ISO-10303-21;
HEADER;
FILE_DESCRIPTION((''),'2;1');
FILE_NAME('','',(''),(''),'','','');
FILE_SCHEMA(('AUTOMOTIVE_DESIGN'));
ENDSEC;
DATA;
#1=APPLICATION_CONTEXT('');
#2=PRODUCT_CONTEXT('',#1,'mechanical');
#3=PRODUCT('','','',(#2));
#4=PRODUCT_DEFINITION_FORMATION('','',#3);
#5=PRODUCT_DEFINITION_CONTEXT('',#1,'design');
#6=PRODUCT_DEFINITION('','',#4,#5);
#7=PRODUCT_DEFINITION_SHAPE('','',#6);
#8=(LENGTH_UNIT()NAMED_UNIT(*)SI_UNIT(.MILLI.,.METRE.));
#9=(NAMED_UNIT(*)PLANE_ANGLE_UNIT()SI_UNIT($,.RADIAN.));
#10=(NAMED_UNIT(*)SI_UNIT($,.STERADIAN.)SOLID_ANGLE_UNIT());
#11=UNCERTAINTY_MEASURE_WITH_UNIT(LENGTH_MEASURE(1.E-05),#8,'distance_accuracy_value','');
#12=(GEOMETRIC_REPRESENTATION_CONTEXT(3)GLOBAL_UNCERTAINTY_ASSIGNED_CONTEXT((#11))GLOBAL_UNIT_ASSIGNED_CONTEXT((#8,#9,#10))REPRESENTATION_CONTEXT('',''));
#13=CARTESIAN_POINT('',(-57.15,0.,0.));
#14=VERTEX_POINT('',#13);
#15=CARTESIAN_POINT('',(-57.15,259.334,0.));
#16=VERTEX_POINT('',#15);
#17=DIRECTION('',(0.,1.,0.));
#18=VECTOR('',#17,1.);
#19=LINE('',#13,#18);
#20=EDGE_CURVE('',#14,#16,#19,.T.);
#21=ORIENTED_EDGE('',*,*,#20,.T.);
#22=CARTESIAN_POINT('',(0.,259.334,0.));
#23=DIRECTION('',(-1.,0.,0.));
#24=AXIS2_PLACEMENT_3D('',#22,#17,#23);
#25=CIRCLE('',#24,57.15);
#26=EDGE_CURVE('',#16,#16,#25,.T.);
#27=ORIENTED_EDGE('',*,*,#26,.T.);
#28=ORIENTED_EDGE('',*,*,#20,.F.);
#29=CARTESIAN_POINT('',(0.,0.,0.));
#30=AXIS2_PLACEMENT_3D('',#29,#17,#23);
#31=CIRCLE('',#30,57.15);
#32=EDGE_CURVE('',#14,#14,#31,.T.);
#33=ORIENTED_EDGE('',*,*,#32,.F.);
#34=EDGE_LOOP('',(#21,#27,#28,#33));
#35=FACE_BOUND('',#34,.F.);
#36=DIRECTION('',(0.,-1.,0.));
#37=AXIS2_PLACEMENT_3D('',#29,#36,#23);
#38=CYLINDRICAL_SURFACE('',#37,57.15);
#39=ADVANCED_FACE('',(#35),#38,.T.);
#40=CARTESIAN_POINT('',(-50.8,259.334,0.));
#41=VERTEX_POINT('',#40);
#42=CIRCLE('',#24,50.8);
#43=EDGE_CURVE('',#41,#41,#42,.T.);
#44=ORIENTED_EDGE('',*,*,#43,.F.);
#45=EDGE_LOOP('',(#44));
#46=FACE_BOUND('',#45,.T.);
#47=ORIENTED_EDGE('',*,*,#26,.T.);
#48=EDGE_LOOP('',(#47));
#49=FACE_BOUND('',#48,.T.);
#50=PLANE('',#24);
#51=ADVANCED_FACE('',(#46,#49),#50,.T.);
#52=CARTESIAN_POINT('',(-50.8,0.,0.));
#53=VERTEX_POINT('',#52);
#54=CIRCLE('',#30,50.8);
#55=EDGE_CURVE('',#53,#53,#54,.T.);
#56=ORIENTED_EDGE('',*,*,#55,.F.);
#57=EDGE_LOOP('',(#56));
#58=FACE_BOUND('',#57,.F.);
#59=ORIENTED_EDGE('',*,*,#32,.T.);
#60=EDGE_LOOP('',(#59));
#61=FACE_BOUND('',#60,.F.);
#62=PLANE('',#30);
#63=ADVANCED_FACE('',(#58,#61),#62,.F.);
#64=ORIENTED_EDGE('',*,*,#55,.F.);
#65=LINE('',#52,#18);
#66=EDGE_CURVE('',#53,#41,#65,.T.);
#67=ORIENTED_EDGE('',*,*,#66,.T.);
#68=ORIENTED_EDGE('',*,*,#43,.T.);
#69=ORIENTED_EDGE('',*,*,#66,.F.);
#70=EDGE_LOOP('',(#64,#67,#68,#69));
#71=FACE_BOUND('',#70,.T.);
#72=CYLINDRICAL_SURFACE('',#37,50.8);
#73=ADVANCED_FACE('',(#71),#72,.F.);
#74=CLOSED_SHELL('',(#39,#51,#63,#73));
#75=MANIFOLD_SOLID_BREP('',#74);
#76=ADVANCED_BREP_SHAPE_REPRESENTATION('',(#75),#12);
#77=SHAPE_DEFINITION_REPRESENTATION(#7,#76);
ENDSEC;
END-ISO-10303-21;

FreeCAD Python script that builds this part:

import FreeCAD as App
import Part
import Sketcher

V = App.Vector
Q = App.Units.Quantity

doc = App.newDocument("Part")
body = doc.addObject("PartDesign::Body", "Body")

sketch1 = body.newObject("Sketcher::SketchObject", "Sketch")
sketch1.AttachmentSupport = (doc.getObject("XZ_Plane"), [""])
sketch1.MapMode = "FlatFace"
sketch1.addGeometry([
    Part.Circle(V(0, 0, 0), V(0, 0, 1), 57),
    Part.Circle(V(0, 0, 0), V(0, 0, 1), 51),
], False)
sketch1.addConstraint([
    Sketcher.Constraint("Coincident", 0, 3, -1, 1),
    Sketcher.Constraint("Coincident", 1, 3, -1, 1),
    Sketcher.Constraint("Diameter", 1, Q("4 in")),
    Sketcher.Constraint("Diameter", 0, Q("4.5 in")),
])
pad1 = body.newObject("PartDesign::Pad", "Pad")
pad1.Profile = sketch1
pad1.Length = Q("10.21 in")
pad1.Reversed = True

doc.recompute()
